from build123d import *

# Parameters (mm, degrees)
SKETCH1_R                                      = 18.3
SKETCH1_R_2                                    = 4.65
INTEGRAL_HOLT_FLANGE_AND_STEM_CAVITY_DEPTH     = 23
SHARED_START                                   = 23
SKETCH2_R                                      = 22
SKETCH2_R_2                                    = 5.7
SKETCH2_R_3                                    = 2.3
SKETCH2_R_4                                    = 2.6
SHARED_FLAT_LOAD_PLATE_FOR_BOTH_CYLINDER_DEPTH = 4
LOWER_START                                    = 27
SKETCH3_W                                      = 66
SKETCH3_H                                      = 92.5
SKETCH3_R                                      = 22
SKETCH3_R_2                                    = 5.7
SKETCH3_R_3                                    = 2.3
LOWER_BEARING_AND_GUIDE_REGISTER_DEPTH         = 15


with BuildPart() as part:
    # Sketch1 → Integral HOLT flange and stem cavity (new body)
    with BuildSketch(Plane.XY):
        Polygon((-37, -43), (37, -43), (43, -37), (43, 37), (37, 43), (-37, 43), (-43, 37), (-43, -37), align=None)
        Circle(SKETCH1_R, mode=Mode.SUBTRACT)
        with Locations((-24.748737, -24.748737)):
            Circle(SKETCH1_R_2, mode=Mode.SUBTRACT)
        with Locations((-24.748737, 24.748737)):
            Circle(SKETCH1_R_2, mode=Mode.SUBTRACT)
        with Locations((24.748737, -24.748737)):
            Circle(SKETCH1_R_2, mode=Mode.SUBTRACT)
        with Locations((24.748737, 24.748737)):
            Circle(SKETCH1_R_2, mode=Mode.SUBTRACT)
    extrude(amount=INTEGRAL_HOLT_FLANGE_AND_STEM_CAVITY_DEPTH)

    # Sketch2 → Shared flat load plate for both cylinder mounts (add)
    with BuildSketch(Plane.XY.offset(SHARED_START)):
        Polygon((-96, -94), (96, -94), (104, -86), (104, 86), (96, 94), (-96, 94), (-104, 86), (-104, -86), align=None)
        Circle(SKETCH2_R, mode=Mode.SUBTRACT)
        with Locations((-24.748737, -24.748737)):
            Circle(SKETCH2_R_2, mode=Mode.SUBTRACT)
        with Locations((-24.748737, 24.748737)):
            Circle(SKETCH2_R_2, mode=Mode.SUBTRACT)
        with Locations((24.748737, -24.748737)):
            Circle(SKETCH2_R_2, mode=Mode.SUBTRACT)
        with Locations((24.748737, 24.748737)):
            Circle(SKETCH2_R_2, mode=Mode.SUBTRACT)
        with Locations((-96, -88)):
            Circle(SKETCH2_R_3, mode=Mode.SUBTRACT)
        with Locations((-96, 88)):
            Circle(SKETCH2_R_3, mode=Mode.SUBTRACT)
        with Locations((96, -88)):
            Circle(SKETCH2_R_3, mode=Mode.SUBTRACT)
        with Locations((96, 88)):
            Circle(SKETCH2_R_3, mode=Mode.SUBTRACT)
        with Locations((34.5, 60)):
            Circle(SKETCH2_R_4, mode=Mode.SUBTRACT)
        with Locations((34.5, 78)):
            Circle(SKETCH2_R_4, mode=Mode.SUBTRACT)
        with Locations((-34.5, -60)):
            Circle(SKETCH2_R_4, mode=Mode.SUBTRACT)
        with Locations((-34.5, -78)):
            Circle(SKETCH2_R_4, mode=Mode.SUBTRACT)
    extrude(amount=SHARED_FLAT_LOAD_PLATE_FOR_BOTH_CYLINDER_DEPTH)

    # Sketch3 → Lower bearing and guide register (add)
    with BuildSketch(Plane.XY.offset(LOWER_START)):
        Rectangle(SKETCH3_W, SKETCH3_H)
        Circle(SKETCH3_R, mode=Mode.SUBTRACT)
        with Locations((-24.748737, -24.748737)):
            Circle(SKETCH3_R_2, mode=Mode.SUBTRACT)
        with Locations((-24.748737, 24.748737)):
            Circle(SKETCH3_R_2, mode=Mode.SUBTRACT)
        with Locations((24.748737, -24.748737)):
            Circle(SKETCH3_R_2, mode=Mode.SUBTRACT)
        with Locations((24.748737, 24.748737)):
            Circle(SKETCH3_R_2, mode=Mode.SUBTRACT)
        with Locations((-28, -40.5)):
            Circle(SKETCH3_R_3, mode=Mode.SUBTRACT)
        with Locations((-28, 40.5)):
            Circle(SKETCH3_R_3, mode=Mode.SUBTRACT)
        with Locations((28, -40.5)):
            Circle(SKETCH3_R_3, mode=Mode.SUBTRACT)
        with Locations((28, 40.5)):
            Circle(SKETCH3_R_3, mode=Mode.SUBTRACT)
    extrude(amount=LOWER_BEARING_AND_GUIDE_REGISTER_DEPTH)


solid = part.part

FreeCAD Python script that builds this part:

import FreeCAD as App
import Part
import Sketcher
from FreeCAD import Vector
Q = App.Units.Quantity


def add_polygon(sketch, points):
    """Adds a closed chain of lines whose ends are joined by coincident constraints."""
    first, n = sketch.GeometryCount, len(points)
    for a, b in zip(points, points[1:] + points[:1]):
        sketch.addGeometry(Part.LineSegment(App.Vector(*a, 0), App.Vector(*b, 0)), False)
    for i in range(n):
        sketch.addConstraint(Sketcher.Constraint("Coincident", first + i, 2, first + (i + 1) % n, 1))

doc = App.newDocument("Part")
params = doc.addObject("Spreadsheet::Sheet", "Params")
for row, (alias, value) in enumerate([
    ("sketch1_diameter", "9.3 mm"),
    ("sketch1_diameter2", "36.6 mm"),
    ("sketch1_width", "74 mm"),
    ("pad1_length", "23 mm"),
    ("sketch2_diameter", "44 mm"),
    ("sketch2_diameter2", "4.6 mm"),
    ("sketch2_diameter3", "5.2 mm"),
    ("sketch2_diameter4", "11.4 mm"),
    ("sketch2_width", "192 mm"),
    ("pad2_length", "4 mm"),
    ("sketch3_diameter", "44 mm"),
    ("sketch3_diameter2", "4.6 mm"),
    ("sketch3_diameter3", "11.4 mm"),
    ("sketch3_width", "66 mm"),
    ("sketch3_height", "92.5 mm"),
    ("pad3_length", "15 mm"),
], start=1):
    params.set(f"A{row}", alias)
    params.set(f"B{row}", "=" + value)
    params.setAlias(f"B{row}", alias)

body = doc.addObject("PartDesign::Body", "Body")

# Sketch on XY plane
sketch1 = body.newObject("Sketcher::SketchObject", "Sketch")
sketch1.AttachmentSupport = (doc.getObject("XY_Plane"), [""])
sketch1.MapMode = "FlatFace"
add_polygon(sketch1, [(-37, -43), (37, -43), (43, -37), (43, 37), (37, 43), (-37, 43), (-43, 37), (-43, -37)])  # lines 0-7
sketch1.addGeometry(Part.Circle(Vector(-24.7, -24.7, 0), Vector(0, 0, 1), 4.7), False)  # 8
sketch1.addGeometry(Part.Circle(Vector(24.7, -24.7, 0), Vector(0, 0, 1), 4.7), False)  # 9
sketch1.addGeometry(Part.Circle(Vector(-24.7, 24.7, 0), Vector(0, 0, 1), 4.7), False)  # 10
sketch1.addGeometry(Part.Circle(Vector(0, 0, 0), Vector(0, 0, 1), 18.3), False)  # 11
sketch1.addGeometry(Part.Circle(Vector(24.7, 24.7, 0), Vector(0, 0, 1), 4.7), False)  # 12
sketch1.addConstraint(Sketcher.Constraint("Horizontal", 0))
sketch1.addConstraint(Sketcher.Constraint("Vertical", 2))
sketch1.addConstraint(Sketcher.Constraint("Horizontal", 4))
sketch1.addConstraint(Sketcher.Constraint("Vertical", 6))
sketch1.addConstraint(Sketcher.Constraint("Coincident", 11, 3, -1, 1))
sketch1.addConstraint(Sketcher.Constraint("Equal", 8, 9))
sketch1.addConstraint(Sketcher.Constraint("Equal", 9, 10))
sketch1.addConstraint(Sketcher.Constraint("Equal", 10, 12))
sketch1.addConstraint(Sketcher.Constraint("Symmetric", 9, 3, 10, 3, -1, 1))
sketch1.addConstraint(Sketcher.Constraint("Symmetric", 8, 3, 12, 3, -1, 1))
sketch1.addConstraint(Sketcher.Constraint("Symmetric", 0, 2, 4, 2, -1, 1))
sketch1.addConstraint(Sketcher.Constraint("Symmetric", 1, 2, 5, 2, -1, 1))
sketch1.addConstraint(Sketcher.Constraint("Symmetric", 8, 3, 9, 3, -2))
sketch1.addConstraint(Sketcher.Constraint("Perpendicular", 1, 3))
sketch1.addConstraint(Sketcher.Constraint("Perpendicular", 5, 7))
sketch1.addConstraint(Sketcher.Constraint("Horizontal", 2, 2, 5, 2))
sketch1.addConstraint(Sketcher.Constraint("Horizontal", 1, 2, 6, 2))
sketch1.addConstraint(Sketcher.Constraint("Vertical", 0, 2, 3, 2))
sketch1.addConstraint(Sketcher.Constraint("Equal", 4, 2))
sketch1.addConstraint(Sketcher.Constraint("Diameter", 8, Q("9.3 mm")))
sketch1.addConstraint(Sketcher.Constraint("Diameter", 11, Q("36.6 mm")))
sketch1.addConstraint(Sketcher.Constraint("DistanceX", 0, 1, 0, 2, Q("74 mm")))
sketch1.addConstraint(Sketcher.Constraint("DistanceY", 0, 2, -1, 1, Q("43 mm")))
sketch1.addConstraint(Sketcher.Constraint("DistanceX", 8, 3, -1, 1, Q("24.748737 mm")))
sketch1.addConstraint(Sketcher.Constraint("DistanceY", 8, 3, -1, 1, Q("24.748737 mm")))
sketch1.setExpression("Constraints[27]", "Params.sketch1_diameter")
sketch1.setExpression("Constraints[28]", "Params.sketch1_diameter2")
sketch1.setExpression("Constraints[29]", "Params.sketch1_width")
pad1 = body.newObject("PartDesign::Pad", "Pad")
pad1.Profile = sketch1
pad1.setExpression("Length", "Params.pad1_length")

# Sketch on XY plane
sketch2 = body.newObject("Sketcher::SketchObject", "Sketch001")
sketch2.AttachmentSupport = (doc.getObject("XY_Plane"), [""])
sketch2.MapMode = "FlatFace"
sketch2.AttachmentOffset = App.Placement(Vector(0, 0, 23), App.Rotation())
add_polygon(sketch2, [(-96, -94), (96, -94), (104, -86), (104, 86), (96, 94), (-96, 94), (-104, 86), (-104, -86)])  # lines 0-7
sketch2.addGeometry(Part.Circle(Vector(-96, -88, 0), Vector(0, 0, 1), 2.3), False)  # 8
sketch2.addGeometry(Part.Circle(Vector(-34.5, -78, 0), Vector(0, 0, 1), 2.6), False)  # 9
sketch2.addGeometry(Part.Circle(Vector(-34.5, -60, 0), Vector(0, 0, 1), 2.6), False)  # 10
sketch2.addGeometry(Part.Circle(Vector(-24.7, -24.7, 0), Vector(0, 0, 1), 5.7), False)  # 11
sketch2.addGeometry(Part.Circle(Vector(96, -88, 0), Vector(0, 0, 1), 2.3), False)  # 12
sketch2.addGeometry(Part.Circle(Vector(24.7, -24.7, 0), Vector(0, 0, 1), 5.7), False)  # 13
sketch2.addGeometry(Part.Circle(Vector(-24.7, 24.7, 0), Vector(0, 0, 1), 5.7), False)  # 14
sketch2.addGeometry(Part.Circle(Vector(-96, 88, 0), Vector(0, 0, 1), 2.3), False)  # 15
sketch2.addGeometry(Part.Circle(Vector(0, 0, 0), Vector(0, 0, 1), 22), False)  # 16
sketch2.addGeometry(Part.Circle(Vector(24.7, 24.7, 0), Vector(0, 0, 1), 5.7), False)  # 17
sketch2.addGeometry(Part.Circle(Vector(34.5, 60, 0), Vector(0, 0, 1), 2.6), False)  # 18
sketch2.addGeometry(Part.Circle(Vector(34.5, 78, 0), Vector(0, 0, 1), 2.6), False)  # 19
sketch2.addGeometry(Part.Circle(Vector(96, 88, 0), Vector(0, 0, 1), 2.3), False)  # 20
sketch2.addConstraint(Sketcher.Constraint("Horizontal", 0))
sketch2.addConstraint(Sketcher.Constraint("Vertical", 2))
sketch2.addConstraint(Sketcher.Constraint("Horizontal", 4))
sketch2.addConstraint(Sketcher.Constraint("Vertical", 6))
sketch2.addConstraint(Sketcher.Constraint("Coincident", 16, 3, -1, 1))
sketch2.addConstraint(Sketcher.Constraint("Equal", 9, 10))
sketch2.addConstraint(Sketcher.Constraint("Equal", 8, 12))
sketch2.addConstraint(Sketcher.Constraint("Equal", 11, 13))
sketch2.addConstraint(Sketcher.Constraint("Equal", 13, 14))
sketch2.addConstraint(Sketcher.Constraint("Equal", 12, 15))
sketch2.addConstraint(Sketcher.Constraint("Equal", 14, 17))
sketch2.addConstraint(Sketcher.Constraint("Equal", 10, 18))
sketch2.addConstraint(Sketcher.Constraint("Equal", 18, 19))
sketch2.addConstraint(Sketcher.Constraint("Equal", 15, 20))
sketch2.addConstraint(Sketcher.Constraint("Symmetric", 13, 3, 14, 3, -1, 1))
sketch2.addConstraint(Sketcher.Constraint("Symmetric", 12, 3, 15, 3, -1, 1))
sketch2.addConstraint(Sketcher.Constraint("Symmetric", 11, 3, 17, 3, -1, 1))
sketch2.addConstraint(Sketcher.Constraint("Symmetric", 10, 3, 18, 3, -1, 1))
sketch2.addConstraint(Sketcher.Constraint("Symmetric", 9, 3, 19, 3, -1, 1))
sketch2.addConstraint(Sketcher.Constraint("Symmetric", 8, 3, 20, 3, -1, 1))
sketch2.addConstraint(Sketcher.Constraint("Symmetric", 0, 2, 4, 2, -1, 1))
sketch2.addConstraint(Sketcher.Constraint("Symmetric", 1, 2, 5, 2, -1, 1))
sketch2.addConstraint(Sketcher.Constraint("Symmetric", 8, 3, 12, 3, -2))
sketch2.addConstraint(Sketcher.Constraint("Symmetric", 11, 3, 13, 3, -2))
sketch2.addConstraint(Sketcher.Constraint("Perpendicular", 1, 3))
sketch2.addConstraint(Sketcher.Constraint("Perpendicular", 5, 7))
sketch2.addConstraint(Sketcher.Constraint("Horizontal", 2, 2, 5, 2))
sketch2.addConstraint(Sketcher.Constraint("Horizontal", 1, 2, 6, 2))
sketch2.addConstraint(Sketcher.Constraint("Vertical", 9, 3, 10, 3))
sketch2.addConstraint(Sketcher.Constraint("Vertical", 20, 3, 0, 2))
sketch2.addConstraint(Sketcher.Constraint("Vertical", 0, 2, 3, 2))
sketch2.addConstraint(Sketcher.Constraint("Diameter", 16, Q("44 mm")))
sketch2.addConstraint(Sketcher.Constraint("Diameter", 8, Q("4.6 mm")))
sketch2.addConstraint(Sketcher.Constraint("Diameter", 9, Q("5.2 mm")))
sketch2.addConstraint(Sketcher.Constraint("Diameter", 11, Q("11.4 mm")))
sketch2.addConstraint(Sketcher.Constraint("DistanceX", 0, 1, 0, 2, Q("192 mm")))
sketch2.addConstraint(Sketcher.Constraint("DistanceY", 2, 1, 2, 2, Q("172 mm")))
sketch2.addConstraint(Sketcher.Constraint("DistanceY", 8, 3, -1, 1, Q("88 mm")))
sketch2.addConstraint(Sketcher.Constraint("DistanceY", 9, 3, -1, 1, Q("78 mm")))
sketch2.addConstraint(Sketcher.Constraint("DistanceY", 10, 3, -1, 1, Q("60 mm")))
sketch2.addConstraint(Sketcher.Constraint("DistanceY", 0, 2, -1, 1, Q("94 mm")))
sketch2.addConstraint(Sketcher.Constraint("DistanceX", 9, 3, -1, 1, Q("34.5 mm")))
sketch2.addConstraint(Sketcher.Constraint("DistanceX", 11, 3, -1, 1, Q("24.748737 mm")))
sketch2.addConstraint(Sketcher.Constraint("DistanceY", 11, 3, -1, 1, Q("24.748737 mm")))
sketch2.setExpression("Constraints[39]", "Params.sketch2_diameter")
sketch2.setExpression("Constraints[40]", "Params.sketch2_diameter2")
sketch2.setExpression("Constraints[41]", "Params.sketch2_diameter3")
sketch2.setExpression("Constraints[42]", "Params.sketch2_diameter4")
sketch2.setExpression("Constraints[43]", "Params.sketch2_width")
pad2 = body.newObject("PartDesign::Pad", "Pad001")
pad2.Profile = sketch2
pad2.setExpression("Length", "Params.pad2_length")

# Sketch on XY plane
sketch3 = body.newObject("Sketcher::SketchObject", "Sketch002")
sketch3.AttachmentSupport = (doc.getObject("XY_Plane"), [""])
sketch3.MapMode = "FlatFace"
sketch3.AttachmentOffset = App.Placement(Vector(0, 0, 27), App.Rotation())
add_polygon(sketch3, [(-33, 46.2), (-33, -46.2), (33, -46.2), (33, 46.2)])  # lines 0-3
sketch3.addGeometry(Part.Circle(Vector(-28, -40.5, 0), Vector(0, 0, 1), 2.3), False)  # 4
sketch3.addGeometry(Part.Circle(Vector(-24.7, -24.7, 0), Vector(0, 0, 1), 5.7), False)  # 5
sketch3.addGeometry(Part.Circle(Vector(28, -40.5, 0), Vector(0, 0, 1), 2.3), False)  # 6
sketch3.addGeometry(Part.Circle(Vector(24.7, -24.7, 0), Vector(0, 0, 1), 5.7), False)  # 7
sketch3.addGeometry(Part.Circle(Vector(-24.7, 24.7, 0), Vector(0, 0, 1), 5.7), False)  # 8
sketch3.addGeometry(Part.Circle(Vector(-28, 40.5, 0), Vector(0, 0, 1), 2.3), False)  # 9
sketch3.addGeometry(Part.Circle(Vector(0, 0, 0), Vector(0, 0, 1), 22), False)  # 10
sketch3.addGeometry(Part.Circle(Vector(24.7, 24.7, 0), Vector(0, 0, 1), 5.7), False)  # 11
sketch3.addGeometry(Part.Circle(Vector(28, 40.5, 0), Vector(0, 0, 1), 2.3), False)  # 12
sketch3.addConstraint(Sketcher.Constraint("Vertical", 0))
sketch3.addConstraint(Sketcher.Constraint("Horizontal", 1))
sketch3.addConstraint(Sketcher.Constraint("Vertical", 2))
sketch3.addConstraint(Sketcher.Constraint("Horizontal", 3))
sketch3.addConstraint(Sketcher.Constraint("Coincident", 10, 3, -1, 1))
sketch3.addConstraint(Sketcher.Constraint("Equal", 4, 6))
sketch3.addConstraint(Sketcher.Constraint("Equal", 5, 7))
sketch3.addConstraint(Sketcher.Constraint("Equal", 7, 8))
sketch3.addConstraint(Sketcher.Constraint("Equal", 6, 9))
sketch3.addConstraint(Sketcher.Constraint("Equal", 8, 11))
sketch3.addConstraint(Sketcher.Constraint("Equal", 9, 12))
sketch3.addConstraint(Sketcher.Constraint("Symmetric", 7, 3, 8, 3, -1, 1))
sketch3.addConstraint(Sketcher.Constraint("Symmetric", 6, 3, 9, 3, -1, 1))
sketch3.addConstraint(Sketcher.Constraint("Symmetric", 5, 3, 11, 3, -1, 1))
sketch3.addConstraint(Sketcher.Constraint("Symmetric", 4, 3, 12, 3, -1, 1))
sketch3.addConstraint(Sketcher.Constraint("Symmetric", 0, 2, 2, 2, -1, 1))
sketch3.addConstraint(Sketcher.Constraint("Symmetric", 4, 3, 6, 3, -2))
sketch3.addConstraint(Sketcher.Constraint("Symmetric", 5, 3, 7, 3, -2))
sketch3.addConstraint(Sketcher.Constraint("Diameter", 10, Q("44 mm")))
sketch3.addConstraint(Sketcher.Constraint("Diameter", 4, Q("4.6 mm")))
sketch3.addConstraint(Sketcher.Constraint("Diameter", 5, Q("11.4 mm")))
sketch3.addConstraint(Sketcher.Constraint("DistanceX", 1, 1, 1, 2, Q("66 mm")))
sketch3.addConstraint(Sketcher.Constraint("DistanceY", 0, 2, 0, 1, Q("92.5 mm")))
sketch3.addConstraint(Sketcher.Constraint("DistanceX", 4, 3, -1, 1, Q("28 mm")))
sketch3.addConstraint(Sketcher.Constraint("DistanceY", 4, 3, 9, 3, Q("81 mm")))
sketch3.addConstraint(Sketcher.Constraint("DistanceX", 5, 3, -1, 1, Q("24.748737 mm")))
sketch3.addConstraint(Sketcher.Constraint("DistanceY", 5, 3, -1, 1, Q("24.748737 mm")))
sketch3.setExpression("Constraints[22]", "Params.sketch3_diameter")
sketch3.setExpression("Constraints[23]", "Params.sketch3_diameter2")
sketch3.setExpression("Constraints[24]", "Params.sketch3_diameter3")
sketch3.setExpression("Constraints[25]", "Params.sketch3_width")
sketch3.setExpression("Constraints[26]", "Params.sketch3_height")
pad3 = body.newObject("PartDesign::Pad", "Pad002")
pad3.Profile = sketch3
pad3.setExpression("Length", "Params.pad3_length")

doc.recompute()
